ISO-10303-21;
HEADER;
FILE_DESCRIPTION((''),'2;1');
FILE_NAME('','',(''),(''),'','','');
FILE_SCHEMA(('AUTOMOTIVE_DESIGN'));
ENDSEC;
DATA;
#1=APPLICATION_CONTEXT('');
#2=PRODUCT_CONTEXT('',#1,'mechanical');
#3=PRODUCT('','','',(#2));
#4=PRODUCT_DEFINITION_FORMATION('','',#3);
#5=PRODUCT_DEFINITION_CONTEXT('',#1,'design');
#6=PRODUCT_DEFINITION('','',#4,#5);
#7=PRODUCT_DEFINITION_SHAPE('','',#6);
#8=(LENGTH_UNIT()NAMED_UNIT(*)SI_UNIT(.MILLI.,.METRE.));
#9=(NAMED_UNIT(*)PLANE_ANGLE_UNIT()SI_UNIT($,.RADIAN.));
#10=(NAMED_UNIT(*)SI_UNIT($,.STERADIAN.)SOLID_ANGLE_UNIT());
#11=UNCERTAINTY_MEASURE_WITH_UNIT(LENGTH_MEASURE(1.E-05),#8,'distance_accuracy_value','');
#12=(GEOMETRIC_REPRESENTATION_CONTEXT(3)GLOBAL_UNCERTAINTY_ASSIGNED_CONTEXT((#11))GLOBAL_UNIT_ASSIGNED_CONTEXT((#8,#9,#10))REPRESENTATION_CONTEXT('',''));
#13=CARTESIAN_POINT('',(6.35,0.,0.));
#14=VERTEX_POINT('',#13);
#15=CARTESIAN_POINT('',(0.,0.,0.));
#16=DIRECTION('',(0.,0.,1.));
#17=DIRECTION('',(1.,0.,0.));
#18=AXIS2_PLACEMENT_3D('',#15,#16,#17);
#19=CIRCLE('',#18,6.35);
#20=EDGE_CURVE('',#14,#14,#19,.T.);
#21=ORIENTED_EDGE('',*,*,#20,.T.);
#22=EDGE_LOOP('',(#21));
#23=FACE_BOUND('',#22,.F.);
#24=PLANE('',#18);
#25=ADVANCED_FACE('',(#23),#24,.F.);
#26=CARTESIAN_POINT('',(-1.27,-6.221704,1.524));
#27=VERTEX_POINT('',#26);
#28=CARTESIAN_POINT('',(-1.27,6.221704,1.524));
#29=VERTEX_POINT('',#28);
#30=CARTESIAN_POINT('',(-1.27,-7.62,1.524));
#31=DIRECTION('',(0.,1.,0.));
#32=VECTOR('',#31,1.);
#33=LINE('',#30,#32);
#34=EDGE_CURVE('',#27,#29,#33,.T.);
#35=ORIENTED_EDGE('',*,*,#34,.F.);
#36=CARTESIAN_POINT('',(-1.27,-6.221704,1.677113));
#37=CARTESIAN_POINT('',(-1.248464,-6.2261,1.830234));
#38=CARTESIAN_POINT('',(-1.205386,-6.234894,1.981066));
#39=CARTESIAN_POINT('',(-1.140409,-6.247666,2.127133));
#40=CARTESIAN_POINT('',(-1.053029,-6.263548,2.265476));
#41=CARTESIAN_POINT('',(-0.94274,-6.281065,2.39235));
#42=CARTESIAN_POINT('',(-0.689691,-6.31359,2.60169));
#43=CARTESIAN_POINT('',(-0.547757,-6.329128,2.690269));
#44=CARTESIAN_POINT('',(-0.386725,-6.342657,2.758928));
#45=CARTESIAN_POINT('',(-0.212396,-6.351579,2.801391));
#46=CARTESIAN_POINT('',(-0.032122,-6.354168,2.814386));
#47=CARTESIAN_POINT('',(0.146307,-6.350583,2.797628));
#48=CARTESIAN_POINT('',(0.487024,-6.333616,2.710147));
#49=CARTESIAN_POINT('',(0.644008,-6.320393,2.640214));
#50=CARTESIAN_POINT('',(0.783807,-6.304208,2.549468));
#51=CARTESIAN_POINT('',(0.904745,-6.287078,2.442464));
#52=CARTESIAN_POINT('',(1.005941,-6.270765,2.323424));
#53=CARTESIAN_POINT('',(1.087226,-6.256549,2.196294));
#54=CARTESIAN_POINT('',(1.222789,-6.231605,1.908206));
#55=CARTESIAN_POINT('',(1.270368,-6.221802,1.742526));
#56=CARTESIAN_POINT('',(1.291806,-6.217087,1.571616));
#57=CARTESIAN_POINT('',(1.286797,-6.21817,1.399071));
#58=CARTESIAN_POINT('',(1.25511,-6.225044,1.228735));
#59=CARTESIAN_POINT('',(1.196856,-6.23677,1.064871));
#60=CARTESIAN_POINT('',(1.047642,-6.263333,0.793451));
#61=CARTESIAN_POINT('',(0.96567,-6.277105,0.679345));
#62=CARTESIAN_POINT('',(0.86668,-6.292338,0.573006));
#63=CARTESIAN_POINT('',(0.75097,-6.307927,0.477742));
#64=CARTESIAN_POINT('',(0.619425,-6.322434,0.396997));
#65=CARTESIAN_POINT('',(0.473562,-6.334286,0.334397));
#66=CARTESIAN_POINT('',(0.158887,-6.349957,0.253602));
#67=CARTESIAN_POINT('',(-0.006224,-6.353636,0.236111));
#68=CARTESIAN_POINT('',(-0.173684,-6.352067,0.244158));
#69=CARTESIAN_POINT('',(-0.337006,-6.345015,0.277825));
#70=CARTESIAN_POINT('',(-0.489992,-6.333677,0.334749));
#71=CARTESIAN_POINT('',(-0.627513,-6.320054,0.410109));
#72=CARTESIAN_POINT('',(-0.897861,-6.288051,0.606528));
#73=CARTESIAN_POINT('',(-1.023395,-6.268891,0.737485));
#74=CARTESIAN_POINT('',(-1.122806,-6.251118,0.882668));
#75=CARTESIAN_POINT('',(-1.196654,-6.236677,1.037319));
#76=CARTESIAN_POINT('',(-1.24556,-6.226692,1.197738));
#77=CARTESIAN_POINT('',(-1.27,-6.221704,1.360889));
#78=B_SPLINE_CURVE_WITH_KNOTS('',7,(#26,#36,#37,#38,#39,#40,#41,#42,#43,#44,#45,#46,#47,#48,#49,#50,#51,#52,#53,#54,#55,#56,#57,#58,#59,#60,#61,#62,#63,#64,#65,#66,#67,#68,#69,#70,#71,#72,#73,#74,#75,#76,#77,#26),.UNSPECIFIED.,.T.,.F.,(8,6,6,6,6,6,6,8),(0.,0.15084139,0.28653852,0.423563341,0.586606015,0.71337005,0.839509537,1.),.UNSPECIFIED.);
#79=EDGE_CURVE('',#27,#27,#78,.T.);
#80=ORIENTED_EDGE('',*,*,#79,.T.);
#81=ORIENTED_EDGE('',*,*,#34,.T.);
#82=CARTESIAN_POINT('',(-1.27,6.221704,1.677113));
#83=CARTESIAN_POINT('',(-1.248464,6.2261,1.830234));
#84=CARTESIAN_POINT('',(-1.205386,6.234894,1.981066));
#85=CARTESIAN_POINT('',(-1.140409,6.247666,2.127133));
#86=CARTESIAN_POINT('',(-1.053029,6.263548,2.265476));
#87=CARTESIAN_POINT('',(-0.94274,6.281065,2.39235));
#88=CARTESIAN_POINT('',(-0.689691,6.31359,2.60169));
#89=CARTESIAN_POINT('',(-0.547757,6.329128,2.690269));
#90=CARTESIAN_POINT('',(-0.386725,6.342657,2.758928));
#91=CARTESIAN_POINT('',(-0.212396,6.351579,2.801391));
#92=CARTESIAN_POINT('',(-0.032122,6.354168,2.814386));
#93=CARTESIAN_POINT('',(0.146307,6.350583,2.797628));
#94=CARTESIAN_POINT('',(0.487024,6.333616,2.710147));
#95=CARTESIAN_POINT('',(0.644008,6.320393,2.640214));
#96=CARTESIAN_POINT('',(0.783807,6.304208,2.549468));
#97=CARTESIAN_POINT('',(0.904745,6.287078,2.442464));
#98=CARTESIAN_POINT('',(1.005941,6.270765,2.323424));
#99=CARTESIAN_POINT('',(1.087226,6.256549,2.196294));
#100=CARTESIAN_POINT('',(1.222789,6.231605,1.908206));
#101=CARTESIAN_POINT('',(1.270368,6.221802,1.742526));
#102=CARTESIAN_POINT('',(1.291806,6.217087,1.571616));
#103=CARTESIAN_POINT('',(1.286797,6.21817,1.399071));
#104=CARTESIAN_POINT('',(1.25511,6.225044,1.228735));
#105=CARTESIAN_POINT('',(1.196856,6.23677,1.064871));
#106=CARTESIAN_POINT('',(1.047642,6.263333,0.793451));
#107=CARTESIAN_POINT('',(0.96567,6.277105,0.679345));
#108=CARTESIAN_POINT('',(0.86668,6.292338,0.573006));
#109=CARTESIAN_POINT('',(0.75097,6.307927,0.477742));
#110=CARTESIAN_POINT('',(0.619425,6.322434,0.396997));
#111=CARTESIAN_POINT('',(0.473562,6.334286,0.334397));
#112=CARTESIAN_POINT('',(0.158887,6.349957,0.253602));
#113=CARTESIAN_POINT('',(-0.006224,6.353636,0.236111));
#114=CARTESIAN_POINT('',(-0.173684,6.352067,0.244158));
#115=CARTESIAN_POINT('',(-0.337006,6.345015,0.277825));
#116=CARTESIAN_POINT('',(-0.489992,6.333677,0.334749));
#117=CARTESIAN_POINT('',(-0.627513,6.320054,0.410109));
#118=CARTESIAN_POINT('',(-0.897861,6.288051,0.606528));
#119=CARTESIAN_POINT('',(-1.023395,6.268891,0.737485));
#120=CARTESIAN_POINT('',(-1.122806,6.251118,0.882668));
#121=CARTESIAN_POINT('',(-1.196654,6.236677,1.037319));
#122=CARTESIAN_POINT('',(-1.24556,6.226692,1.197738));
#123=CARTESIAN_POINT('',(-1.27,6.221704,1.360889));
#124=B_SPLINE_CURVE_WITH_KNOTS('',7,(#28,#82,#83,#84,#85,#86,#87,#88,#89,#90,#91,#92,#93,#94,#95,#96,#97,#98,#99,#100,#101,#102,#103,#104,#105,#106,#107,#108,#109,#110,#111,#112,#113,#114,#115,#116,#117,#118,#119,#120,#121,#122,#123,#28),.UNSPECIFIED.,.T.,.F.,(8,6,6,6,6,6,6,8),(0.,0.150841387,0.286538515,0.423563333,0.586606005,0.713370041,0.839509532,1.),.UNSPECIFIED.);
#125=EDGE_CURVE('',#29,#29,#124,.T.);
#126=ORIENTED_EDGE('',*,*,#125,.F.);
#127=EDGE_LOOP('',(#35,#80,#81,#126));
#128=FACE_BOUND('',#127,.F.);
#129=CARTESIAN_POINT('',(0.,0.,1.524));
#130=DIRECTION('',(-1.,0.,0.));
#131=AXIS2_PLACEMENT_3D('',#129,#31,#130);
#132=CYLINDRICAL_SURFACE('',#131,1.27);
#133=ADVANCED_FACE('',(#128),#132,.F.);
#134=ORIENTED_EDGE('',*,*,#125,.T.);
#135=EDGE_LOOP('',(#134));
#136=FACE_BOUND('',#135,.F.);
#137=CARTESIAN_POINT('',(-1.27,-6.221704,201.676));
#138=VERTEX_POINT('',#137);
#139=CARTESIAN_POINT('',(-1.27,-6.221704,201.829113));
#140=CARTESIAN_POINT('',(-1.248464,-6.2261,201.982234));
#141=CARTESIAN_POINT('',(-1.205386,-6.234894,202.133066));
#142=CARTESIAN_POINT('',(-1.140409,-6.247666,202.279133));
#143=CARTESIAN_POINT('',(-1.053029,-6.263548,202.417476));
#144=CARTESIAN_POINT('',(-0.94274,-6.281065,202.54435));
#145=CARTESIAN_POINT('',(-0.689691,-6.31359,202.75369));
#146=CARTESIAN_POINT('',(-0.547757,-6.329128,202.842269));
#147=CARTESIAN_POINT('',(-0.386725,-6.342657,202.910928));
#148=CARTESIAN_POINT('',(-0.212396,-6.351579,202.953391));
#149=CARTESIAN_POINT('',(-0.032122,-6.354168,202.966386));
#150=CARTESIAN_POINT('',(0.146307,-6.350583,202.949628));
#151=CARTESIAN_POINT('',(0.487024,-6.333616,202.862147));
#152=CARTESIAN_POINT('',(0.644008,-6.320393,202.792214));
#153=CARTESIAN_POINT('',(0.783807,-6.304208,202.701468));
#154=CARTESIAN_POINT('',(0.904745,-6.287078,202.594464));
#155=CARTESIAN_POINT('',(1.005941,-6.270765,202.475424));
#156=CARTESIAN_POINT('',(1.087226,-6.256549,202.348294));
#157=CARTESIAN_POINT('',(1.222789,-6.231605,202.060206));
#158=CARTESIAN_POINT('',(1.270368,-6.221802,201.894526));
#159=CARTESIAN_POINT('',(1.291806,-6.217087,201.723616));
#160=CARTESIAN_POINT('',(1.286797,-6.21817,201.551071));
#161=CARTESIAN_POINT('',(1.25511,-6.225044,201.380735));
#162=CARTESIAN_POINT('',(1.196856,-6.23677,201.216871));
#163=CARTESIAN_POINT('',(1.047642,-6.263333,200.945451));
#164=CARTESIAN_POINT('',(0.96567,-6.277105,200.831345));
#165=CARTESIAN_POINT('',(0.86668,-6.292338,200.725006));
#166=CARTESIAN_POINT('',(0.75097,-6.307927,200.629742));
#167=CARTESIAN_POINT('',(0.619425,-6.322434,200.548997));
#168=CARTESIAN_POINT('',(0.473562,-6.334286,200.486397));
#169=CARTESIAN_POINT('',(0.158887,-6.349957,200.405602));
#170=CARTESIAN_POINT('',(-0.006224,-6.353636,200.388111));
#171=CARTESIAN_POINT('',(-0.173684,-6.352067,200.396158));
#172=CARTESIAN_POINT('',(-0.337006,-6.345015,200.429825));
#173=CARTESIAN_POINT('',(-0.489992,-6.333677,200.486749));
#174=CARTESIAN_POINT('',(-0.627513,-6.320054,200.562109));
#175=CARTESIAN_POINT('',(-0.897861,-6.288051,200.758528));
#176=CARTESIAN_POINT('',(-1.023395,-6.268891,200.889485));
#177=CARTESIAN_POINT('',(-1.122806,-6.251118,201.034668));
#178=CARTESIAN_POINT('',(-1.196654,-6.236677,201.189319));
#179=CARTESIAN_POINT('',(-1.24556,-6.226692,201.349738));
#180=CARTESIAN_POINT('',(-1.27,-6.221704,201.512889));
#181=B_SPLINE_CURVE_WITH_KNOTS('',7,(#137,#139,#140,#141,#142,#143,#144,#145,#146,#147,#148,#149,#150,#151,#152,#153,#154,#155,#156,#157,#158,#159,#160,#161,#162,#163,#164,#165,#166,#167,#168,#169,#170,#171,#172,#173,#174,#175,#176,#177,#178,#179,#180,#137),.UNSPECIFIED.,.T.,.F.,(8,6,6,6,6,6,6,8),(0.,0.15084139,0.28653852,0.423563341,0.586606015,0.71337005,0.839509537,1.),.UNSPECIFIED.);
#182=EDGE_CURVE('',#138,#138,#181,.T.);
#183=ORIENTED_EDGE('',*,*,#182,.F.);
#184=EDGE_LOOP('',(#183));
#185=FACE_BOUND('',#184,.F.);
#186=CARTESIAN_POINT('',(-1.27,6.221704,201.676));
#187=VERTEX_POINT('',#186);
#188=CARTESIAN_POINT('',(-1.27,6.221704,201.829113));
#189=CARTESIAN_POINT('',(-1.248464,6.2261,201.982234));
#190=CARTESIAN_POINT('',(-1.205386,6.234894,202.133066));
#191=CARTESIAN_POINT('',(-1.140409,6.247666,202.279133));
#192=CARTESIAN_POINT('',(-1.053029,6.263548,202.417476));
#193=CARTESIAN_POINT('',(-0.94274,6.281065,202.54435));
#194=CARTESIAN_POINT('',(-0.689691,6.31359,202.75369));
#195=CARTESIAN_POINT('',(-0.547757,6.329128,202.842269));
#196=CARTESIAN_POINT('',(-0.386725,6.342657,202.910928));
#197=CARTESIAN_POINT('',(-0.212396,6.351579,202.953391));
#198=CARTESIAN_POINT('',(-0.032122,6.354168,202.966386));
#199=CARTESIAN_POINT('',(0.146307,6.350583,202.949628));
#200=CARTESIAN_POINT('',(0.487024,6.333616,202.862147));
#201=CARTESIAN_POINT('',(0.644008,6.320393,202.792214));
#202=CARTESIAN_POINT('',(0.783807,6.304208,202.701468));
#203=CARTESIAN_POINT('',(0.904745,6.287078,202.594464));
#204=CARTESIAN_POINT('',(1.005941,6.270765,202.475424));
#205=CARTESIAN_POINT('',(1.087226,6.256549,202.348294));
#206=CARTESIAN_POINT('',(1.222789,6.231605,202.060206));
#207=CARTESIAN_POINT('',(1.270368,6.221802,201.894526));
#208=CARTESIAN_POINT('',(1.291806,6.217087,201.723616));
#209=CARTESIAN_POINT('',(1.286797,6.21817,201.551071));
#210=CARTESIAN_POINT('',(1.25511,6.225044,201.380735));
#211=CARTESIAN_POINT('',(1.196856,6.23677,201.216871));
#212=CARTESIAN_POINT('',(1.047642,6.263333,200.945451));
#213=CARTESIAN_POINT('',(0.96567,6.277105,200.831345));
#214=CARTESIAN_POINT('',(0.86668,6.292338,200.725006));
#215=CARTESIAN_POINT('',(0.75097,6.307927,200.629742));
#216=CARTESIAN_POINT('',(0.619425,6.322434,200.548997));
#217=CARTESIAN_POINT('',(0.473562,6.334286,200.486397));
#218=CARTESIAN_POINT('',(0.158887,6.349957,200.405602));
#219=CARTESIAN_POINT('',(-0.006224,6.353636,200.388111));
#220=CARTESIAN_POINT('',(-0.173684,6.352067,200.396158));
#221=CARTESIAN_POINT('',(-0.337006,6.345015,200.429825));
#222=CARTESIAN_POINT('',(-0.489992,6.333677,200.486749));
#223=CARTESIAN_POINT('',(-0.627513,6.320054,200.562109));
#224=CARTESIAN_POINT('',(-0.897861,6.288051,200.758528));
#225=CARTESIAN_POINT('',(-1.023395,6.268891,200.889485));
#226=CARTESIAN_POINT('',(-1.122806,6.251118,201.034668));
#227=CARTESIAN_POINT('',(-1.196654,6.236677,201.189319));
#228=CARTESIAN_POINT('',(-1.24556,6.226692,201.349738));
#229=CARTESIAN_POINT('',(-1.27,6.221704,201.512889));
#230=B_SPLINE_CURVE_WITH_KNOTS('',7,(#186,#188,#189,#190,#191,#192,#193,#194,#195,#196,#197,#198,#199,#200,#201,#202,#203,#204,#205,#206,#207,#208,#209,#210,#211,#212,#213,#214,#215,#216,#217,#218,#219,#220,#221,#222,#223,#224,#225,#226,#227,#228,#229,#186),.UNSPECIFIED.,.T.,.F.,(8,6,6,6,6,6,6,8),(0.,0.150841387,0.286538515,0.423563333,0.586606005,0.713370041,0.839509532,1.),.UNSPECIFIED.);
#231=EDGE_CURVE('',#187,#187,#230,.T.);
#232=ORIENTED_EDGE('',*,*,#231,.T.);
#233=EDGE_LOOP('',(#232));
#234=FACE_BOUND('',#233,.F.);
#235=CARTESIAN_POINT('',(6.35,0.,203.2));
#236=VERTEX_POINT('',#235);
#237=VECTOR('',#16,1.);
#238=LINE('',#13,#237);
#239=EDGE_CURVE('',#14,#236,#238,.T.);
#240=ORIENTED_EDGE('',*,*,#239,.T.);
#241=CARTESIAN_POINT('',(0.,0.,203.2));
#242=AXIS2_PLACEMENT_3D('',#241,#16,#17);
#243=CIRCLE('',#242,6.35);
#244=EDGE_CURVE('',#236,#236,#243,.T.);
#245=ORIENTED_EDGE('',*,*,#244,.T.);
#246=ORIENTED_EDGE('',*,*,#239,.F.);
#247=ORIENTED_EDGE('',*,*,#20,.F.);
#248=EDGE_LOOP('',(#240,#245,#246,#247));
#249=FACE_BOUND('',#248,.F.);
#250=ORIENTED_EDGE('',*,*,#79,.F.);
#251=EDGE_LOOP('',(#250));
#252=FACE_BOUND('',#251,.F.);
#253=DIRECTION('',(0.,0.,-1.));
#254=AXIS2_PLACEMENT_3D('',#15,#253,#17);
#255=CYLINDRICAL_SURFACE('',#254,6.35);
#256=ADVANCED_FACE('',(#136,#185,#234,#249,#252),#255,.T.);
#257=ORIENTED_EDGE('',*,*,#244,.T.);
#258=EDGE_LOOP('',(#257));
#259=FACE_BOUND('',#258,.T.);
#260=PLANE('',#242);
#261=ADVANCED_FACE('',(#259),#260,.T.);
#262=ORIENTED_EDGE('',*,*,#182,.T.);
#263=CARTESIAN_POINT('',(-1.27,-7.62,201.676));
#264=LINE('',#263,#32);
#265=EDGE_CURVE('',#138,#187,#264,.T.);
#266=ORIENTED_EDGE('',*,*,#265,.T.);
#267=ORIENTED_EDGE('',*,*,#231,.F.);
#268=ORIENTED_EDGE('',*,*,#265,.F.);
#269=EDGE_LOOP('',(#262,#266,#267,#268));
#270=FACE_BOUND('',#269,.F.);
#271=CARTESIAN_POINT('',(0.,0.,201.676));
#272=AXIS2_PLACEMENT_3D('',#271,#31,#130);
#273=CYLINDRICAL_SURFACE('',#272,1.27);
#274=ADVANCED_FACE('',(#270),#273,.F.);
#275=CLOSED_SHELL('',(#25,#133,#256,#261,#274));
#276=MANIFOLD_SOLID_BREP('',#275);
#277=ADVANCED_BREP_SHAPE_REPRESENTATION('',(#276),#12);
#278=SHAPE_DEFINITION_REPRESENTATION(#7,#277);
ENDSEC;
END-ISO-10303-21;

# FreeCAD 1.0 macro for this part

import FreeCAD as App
import Part
import Sketcher
Q = App.Units.Quantity

doc = App.newDocument("Part")
body = doc.addObject("PartDesign::Body", "Body")

# Sketch on XY plane
sketch1 = doc.addObject("Sketcher::SketchObject", "Sketch")
body.addObject(sketch1)
sketch1.AttachmentSupport = (doc.XY_Plane, [""])
sketch1.MapMode = "FlatFace"
sketch1.addGeometry(Part.Circle(App.Vector(0, 0, 0), App.Vector(0, 0, 1), 6), False)
sketch1.addConstraint(Sketcher.Constraint("Coincident", 0, 3, -1, 1))
sketch1.addConstraint(Sketcher.Constraint("Diameter", 0, Q("0.5 in")))
pad1 = doc.addObject("PartDesign::Pad", "Pad")
body.addObject(pad1)
pad1.Profile = sketch1
pad1.Length = Q("8 in")

# Sketch on XZ plane
sketch2 = doc.addObject("Sketcher::SketchObject", "Sketch001")
body.addObject(sketch2)
sketch2.AttachmentSupport = (doc.XZ_Plane, [""])
sketch2.MapMode = "FlatFace"
sketch2.addGeometry(Part.Circle(App.Vector(0, 201.7, 0), App.Vector(0, 0, 1), 1.3), False)
sketch2.addGeometry(Part.Circle(App.Vector(0, 1.5, 0), App.Vector(0, 0, 1), 1.3), False)
sketch2.addConstraint(Sketcher.Constraint("Equal", 0, 1))
sketch2.addConstraint(Sketcher.Constraint("PointOnObject", 0, 3, -2))
sketch2.addConstraint(Sketcher.Constraint("PointOnObject", 1, 3, -2))
sketch2.addConstraint(Sketcher.Constraint("Diameter", 0, Q("0.1 in")))
sketch2.addConstraint(Sketcher.Constraint("DistanceY", -1, 1, 1, 3, Q("0.06 in")))
sketch2.addConstraint(Sketcher.Constraint("DistanceY", -1, 1, 0, 3, Q("7.94 in")))
pocket1 = doc.addObject("PartDesign::Pocket", "Pocket")
body.addObject(pocket1)
pocket1.Profile = sketch2
pocket1.Length = Q("0.6 in")
pocket1.Midplane = True

doc.recompute()
